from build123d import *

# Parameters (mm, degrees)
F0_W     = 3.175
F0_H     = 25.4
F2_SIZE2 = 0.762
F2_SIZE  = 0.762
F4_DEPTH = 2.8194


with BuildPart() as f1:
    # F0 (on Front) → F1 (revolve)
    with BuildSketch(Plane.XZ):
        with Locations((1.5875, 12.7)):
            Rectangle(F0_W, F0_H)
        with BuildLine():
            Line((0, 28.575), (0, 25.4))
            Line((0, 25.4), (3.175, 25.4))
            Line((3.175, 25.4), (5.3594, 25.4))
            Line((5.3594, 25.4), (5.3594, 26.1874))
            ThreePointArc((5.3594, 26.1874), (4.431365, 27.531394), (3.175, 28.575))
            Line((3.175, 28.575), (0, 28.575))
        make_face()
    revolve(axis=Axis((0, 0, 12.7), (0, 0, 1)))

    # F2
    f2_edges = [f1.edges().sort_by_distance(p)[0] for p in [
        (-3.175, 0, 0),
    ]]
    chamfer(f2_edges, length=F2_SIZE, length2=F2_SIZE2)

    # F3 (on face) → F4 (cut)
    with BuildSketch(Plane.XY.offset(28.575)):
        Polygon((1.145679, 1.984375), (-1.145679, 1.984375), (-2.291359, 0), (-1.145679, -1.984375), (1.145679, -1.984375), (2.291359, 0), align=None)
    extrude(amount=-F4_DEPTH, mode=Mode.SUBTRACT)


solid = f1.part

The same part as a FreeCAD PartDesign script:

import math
import FreeCAD as App
import Part
import Sketcher
from FreeCAD import Vector
Q = App.Units.Quantity


def edges_at(feature, points):
    """Names of the edges that pass closest to the given points."""
    edges = feature.Shape.Edges
    near = lambda p: min(range(len(edges)), key=lambda i: edges[i].distToShape(Part.Vertex(*p))[0])
    return sorted({f"Edge{near(p) + 1}" for p in points})


def add_polygon(sketch, points):
    """Adds a closed chain of lines whose ends are joined by coincident constraints."""
    first, n = sketch.GeometryCount, len(points)
    for a, b in zip(points, points[1:] + points[:1]):
        sketch.addGeometry(Part.LineSegment(App.Vector(*a, 0), App.Vector(*b, 0)), False)
    for i in range(n):
        sketch.addConstraint(Sketcher.Constraint("Coincident", first + i, 2, first + (i + 1) % n, 1))

doc = App.newDocument("Part")
params = doc.addObject("Spreadsheet::Sheet", "Params")
for row, (alias, value) in enumerate([
    ("sketch1_height", "1 in"),
    ("sketch1_radius", "0.2360002 in"),
    ("sketch1_width", "0.125 in"),
    ("sketch1_width2", "0.086 in"),
    ("sketch1_height2", "0.031 in"),
    ("revolution_angle", "360 deg"),
    ("chamfer_size", "0.03 in"),
    ("chamfer_size2", "0.03 in"),
    ("pocket1_length", "0.111 in"),
], start=1):
    params.set(f"A{row}", alias)
    params.set(f"B{row}", "=" + value)
    params.setAlias(f"B{row}", alias)

body = doc.addObject("PartDesign::Body", "Body")

# Sketch on XZ plane
sketch1 = body.newObject("Sketcher::SketchObject", "Sketch")
sketch1.AttachmentSupport = (doc.getObject("XZ_Plane"), [""])
sketch1.MapMode = "FlatFace"
sketch1.addGeometry(Part.LineSegment(Vector(0, 0, 0), Vector(3.175, 0, 0)), False)
sketch1.addGeometry(Part.LineSegment(Vector(3.175, 0, 0), Vector(3.175, 25.4, 0)), False)
sketch1.addGeometry(Part.LineSegment(Vector(3.175, 25.4, 0), Vector(5.3594, 25.4, 0)), False)
sketch1.addGeometry(Part.LineSegment(Vector(5.3594, 25.4, 0), Vector(5.3594, 26.1874, 0)), False)
sketch1.addGeometry(Part.ArcOfCircle(Part.Circle(Vector(0.008661, 23.48509, 0), Vector(0, 0, 1), 5.994405), math.radians(26.795371), math.radians(58.11502)), False)
sketch1.addGeometry(Part.LineSegment(Vector(3.175, 28.575, 0), Vector(0, 28.575, 0)), False)
sketch1.addGeometry(Part.LineSegment(Vector(0, 28.575, 0), Vector(0, 0, 0)), False)
sketch1.addConstraint(Sketcher.Constraint("Coincident", 0, 2, 1, 1))
sketch1.addConstraint(Sketcher.Constraint("Coincident", 1, 2, 2, 1))
sketch1.addConstraint(Sketcher.Constraint("Coincident", 2, 2, 3, 1))
sketch1.addConstraint(Sketcher.Constraint("Coincident", 3, 2, 4, 1))
sketch1.addConstraint(Sketcher.Constraint("Coincident", 4, 2, 5, 1))
sketch1.addConstraint(Sketcher.Constraint("Coincident", 5, 2, 6, 1))
sketch1.addConstraint(Sketcher.Constraint("Coincident", 6, 2, 0, 1))
sketch1.addConstraint(Sketcher.Constraint("Horizontal", 0))
sketch1.addConstraint(Sketcher.Constraint("Vertical", 1))
sketch1.addConstraint(Sketcher.Constraint("Horizontal", 2))
sketch1.addConstraint(Sketcher.Constraint("Vertical", 3))
sketch1.addConstraint(Sketcher.Constraint("Horizontal", 5))
sketch1.addConstraint(Sketcher.Constraint("Vertical", 6))
sketch1.addConstraint(Sketcher.Constraint("Coincident", 6, 2, -1, 1))
sketch1.addConstraint(Sketcher.Constraint("Vertical", 1, 2, 4, 2))
sketch1.addConstraint(Sketcher.Constraint("DistanceY", 1, 1, 1, 2, Q("1 in")))
sketch1.addConstraint(Sketcher.Constraint("Radius", 4, Q("0.2360002 in")))
sketch1.addConstraint(Sketcher.Constraint("DistanceX", 0, 1, 0, 2, Q("0.125 in")))
sketch1.addConstraint(Sketcher.Constraint("DistanceX", 2, 1, 2, 2, Q("0.086 in")))
sketch1.addConstraint(Sketcher.Constraint("DistanceY", 3, 1, 3, 2, Q("0.031 in")))
sketch1.addConstraint(Sketcher.Constraint("DistanceY", 6, 2, 6, 1, Q("1.125 in")))
sketch1.setExpression("Constraints[15]", "Params.sketch1_height")
sketch1.setExpression("Constraints[16]", "Params.sketch1_radius")
sketch1.setExpression("Constraints[17]", "Params.sketch1_width")
sketch1.setExpression("Constraints[18]", "Params.sketch1_width2")
sketch1.setExpression("Constraints[19]", "Params.sketch1_height2")
revolution = body.newObject("PartDesign::Revolution", "Revolution")
revolution.Profile = sketch1
revolution.ReferenceAxis = (sketch1, ["V_Axis"])
revolution.setExpression("Angle", "Params.revolution_angle")
doc.recompute()

chamfer = body.newObject("PartDesign::Chamfer", "Chamfer")
chamfer.Base = (revolution, edges_at(revolution, [(-3.175, 0, 0)]))
chamfer.ChamferType = "Two distances"
chamfer.setExpression("Size", "Params.chamfer_size")
chamfer.setExpression("Size2", "Params.chamfer_size2")

# Sketch on XY plane
sketch2 = body.newObject("Sketcher::SketchObject", "Sketch001")
sketch2.AttachmentSupport = (doc.getObject("XY_Plane"), [""])
sketch2.MapMode = "FlatFace"
sketch2.AttachmentOffset = App.Placement(Vector(0, 0, 1.125 * 25.4), App.Rotation())
add_polygon(sketch2, [(1.145679, 1.984375), (-1.145679, 1.984375), (-2.291359, 0), (-1.145679, -1.984375), (1.145679, -1.984375), (2.291359, 0)])  # lines 0-5
sketch2.addConstraint(Sketcher.Constraint("Horizontal", 0))
sketch2.addConstraint(Sketcher.Constraint("Horizontal", 3))
sketch2.addConstraint(Sketcher.Constraint("Symmetric", 0, 2, 3, 2, -1, 1))
sketch2.addConstraint(Sketcher.Constraint("Symmetric", 1, 2, 4, 2, -1, 1))
sketch2.addConstraint(Sketcher.Constraint("PointOnObject", 1, 2, -1))
sketch2.addConstraint(Sketcher.Constraint("Parallel", 2, 5))
sketch2.addConstraint(Sketcher.Constraint("Vertical", 0, 2, 2, 2))
sketch2.addConstraint(Sketcher.Constraint("Angle", 1, Q("-120.000012 deg")))
sketch2.addConstraint(Sketcher.Constraint("DistanceY", -1, 1, 0, 2, Q("0.078125 in")))
sketch2.addConstraint(Sketcher.Constraint("DistanceX", 0, 2, 0, 1, Q("2.291358 mm")))
pocket1 = body.newObject("PartDesign::Pocket", "Pocket")
pocket1.Profile = sketch2
pocket1.setExpression("Length", "Params.pocket1_length")

doc.recompute()
